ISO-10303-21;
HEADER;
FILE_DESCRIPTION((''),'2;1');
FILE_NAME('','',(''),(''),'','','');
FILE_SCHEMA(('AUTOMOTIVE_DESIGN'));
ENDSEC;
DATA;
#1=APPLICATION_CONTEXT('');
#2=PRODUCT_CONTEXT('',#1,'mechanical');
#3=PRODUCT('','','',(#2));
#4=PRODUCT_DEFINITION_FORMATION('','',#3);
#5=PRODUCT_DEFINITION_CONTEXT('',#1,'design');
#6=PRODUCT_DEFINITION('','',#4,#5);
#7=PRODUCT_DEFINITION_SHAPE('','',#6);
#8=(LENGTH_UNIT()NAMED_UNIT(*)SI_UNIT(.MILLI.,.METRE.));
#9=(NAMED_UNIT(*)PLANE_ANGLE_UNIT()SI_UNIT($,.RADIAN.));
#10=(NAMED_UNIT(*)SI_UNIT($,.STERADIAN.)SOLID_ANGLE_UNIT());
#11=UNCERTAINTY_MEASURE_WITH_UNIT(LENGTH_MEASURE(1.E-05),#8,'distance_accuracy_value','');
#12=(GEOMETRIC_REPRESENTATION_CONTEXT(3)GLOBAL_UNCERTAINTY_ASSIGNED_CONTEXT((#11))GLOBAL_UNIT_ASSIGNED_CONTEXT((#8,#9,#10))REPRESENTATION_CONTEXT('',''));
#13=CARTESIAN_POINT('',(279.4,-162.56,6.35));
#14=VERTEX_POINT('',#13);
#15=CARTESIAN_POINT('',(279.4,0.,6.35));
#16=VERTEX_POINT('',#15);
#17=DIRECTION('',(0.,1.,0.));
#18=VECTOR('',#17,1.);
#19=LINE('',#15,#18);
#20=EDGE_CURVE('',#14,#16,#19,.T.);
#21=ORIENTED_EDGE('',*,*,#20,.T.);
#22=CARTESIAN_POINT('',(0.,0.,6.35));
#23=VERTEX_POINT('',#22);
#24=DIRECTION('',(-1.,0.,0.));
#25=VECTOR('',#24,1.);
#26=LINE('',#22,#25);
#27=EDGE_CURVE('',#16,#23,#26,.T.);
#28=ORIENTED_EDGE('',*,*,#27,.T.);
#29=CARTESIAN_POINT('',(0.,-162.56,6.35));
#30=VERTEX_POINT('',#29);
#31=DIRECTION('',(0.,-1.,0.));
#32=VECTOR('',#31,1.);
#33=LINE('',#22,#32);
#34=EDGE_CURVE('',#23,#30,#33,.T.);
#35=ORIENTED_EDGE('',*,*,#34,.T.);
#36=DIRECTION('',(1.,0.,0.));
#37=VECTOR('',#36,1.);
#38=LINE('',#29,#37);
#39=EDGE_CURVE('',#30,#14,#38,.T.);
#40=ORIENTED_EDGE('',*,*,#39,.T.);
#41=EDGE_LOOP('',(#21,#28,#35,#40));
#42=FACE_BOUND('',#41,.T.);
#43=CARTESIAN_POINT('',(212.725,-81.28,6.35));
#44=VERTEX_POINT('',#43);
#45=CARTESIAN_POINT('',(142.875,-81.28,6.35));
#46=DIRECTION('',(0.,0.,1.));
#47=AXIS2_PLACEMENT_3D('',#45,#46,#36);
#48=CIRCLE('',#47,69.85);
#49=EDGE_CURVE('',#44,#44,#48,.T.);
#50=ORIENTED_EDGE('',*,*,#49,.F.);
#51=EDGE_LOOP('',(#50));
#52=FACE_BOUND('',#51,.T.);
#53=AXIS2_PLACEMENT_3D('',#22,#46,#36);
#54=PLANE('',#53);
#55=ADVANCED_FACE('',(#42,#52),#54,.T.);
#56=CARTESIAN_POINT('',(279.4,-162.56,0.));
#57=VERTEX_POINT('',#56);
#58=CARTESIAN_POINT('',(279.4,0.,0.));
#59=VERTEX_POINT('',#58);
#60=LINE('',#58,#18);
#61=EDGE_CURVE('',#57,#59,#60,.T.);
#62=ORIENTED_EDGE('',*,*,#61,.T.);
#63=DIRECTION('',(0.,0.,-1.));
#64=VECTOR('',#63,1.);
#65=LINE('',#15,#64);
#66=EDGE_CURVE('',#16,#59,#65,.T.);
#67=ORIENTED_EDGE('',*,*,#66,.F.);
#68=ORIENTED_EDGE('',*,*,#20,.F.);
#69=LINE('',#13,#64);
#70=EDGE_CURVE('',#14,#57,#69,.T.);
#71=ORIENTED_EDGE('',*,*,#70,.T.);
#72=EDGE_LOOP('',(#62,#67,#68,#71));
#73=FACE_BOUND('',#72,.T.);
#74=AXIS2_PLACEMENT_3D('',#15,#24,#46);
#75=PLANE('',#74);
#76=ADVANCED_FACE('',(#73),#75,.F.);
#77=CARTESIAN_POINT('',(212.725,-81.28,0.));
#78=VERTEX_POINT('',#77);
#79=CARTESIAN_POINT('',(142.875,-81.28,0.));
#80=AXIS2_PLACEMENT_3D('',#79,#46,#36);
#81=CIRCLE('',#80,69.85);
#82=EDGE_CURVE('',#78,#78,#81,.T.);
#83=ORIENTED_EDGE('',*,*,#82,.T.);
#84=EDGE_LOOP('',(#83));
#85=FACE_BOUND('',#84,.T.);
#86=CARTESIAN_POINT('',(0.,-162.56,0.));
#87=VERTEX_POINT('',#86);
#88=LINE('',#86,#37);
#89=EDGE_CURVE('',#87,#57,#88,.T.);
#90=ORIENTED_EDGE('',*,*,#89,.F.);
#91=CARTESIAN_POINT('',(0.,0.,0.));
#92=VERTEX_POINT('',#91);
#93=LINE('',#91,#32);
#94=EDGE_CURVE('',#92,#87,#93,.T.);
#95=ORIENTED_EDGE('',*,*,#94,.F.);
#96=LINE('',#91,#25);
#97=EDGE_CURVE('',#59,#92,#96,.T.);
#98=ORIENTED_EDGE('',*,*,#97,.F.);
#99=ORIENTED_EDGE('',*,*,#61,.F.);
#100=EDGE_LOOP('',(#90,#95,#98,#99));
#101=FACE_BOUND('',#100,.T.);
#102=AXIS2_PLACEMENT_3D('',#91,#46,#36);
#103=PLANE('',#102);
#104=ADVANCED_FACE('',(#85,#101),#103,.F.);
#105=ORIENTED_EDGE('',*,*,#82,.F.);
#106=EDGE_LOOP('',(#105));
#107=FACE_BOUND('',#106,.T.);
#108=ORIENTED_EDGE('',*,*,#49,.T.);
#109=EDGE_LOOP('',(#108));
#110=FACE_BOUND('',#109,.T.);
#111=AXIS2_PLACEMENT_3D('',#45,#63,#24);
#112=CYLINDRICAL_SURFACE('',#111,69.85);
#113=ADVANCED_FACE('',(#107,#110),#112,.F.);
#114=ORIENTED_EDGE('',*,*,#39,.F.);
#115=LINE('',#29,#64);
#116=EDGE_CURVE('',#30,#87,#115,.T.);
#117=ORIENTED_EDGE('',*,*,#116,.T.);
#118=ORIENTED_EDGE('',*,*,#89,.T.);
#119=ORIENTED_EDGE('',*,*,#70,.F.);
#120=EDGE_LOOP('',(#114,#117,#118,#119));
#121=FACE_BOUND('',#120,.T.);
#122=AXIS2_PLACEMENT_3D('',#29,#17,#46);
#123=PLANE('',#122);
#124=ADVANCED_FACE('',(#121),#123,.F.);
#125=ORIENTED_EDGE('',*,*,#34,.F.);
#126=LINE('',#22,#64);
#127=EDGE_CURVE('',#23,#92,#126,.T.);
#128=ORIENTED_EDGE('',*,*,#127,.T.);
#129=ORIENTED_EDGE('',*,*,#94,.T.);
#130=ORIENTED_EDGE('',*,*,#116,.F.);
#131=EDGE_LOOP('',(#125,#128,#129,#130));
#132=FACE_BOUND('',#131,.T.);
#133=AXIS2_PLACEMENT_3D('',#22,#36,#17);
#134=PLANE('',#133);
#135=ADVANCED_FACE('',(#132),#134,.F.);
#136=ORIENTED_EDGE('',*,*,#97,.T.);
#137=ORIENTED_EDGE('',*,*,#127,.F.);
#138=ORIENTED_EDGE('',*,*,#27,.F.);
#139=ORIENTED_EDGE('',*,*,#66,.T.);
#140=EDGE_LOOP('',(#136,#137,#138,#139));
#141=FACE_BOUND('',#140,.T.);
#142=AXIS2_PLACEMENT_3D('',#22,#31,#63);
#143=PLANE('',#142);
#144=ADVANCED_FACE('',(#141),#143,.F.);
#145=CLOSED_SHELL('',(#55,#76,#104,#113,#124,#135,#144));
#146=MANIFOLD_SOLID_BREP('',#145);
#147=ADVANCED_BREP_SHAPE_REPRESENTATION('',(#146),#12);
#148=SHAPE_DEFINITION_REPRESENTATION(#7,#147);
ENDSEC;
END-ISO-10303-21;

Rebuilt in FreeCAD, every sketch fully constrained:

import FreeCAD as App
import Part
import Sketcher
Q = App.Units.Quantity

doc = App.newDocument("Part")
body = doc.addObject("PartDesign::Body", "Body")

# Sketch on XY plane
sketch1 = body.newObject("Sketcher::SketchObject", "Sketch")
sketch1.AttachmentSupport = (doc.getObject("XY_Plane"), [""])
sketch1.MapMode = "FlatFace"
sketch1.addGeometry(Part.LineSegment(App.Vector(0, 0, 0), App.Vector(0, -163, 0)), False)
sketch1.addGeometry(Part.LineSegment(App.Vector(0, -163, 0), App.Vector(279, -163, 0)), False)
sketch1.addGeometry(Part.LineSegment(App.Vector(279, -163, 0), App.Vector(279, 0, 0)), False)
sketch1.addGeometry(Part.LineSegment(App.Vector(279, 0, 0), App.Vector(0, 0, 0)), False)
sketch1.addGeometry(Part.Circle(App.Vector(143, -81, 0), App.Vector(0, 0, 1), 70), False)
sketch1.addConstraint(Sketcher.Constraint("Coincident", 0, 2, 1, 1))
sketch1.addConstraint(Sketcher.Constraint("Coincident", 1, 2, 2, 1))
sketch1.addConstraint(Sketcher.Constraint("Coincident", 2, 2, 3, 1))
sketch1.addConstraint(Sketcher.Constraint("Coincident", 3, 2, 0, 1))
sketch1.addConstraint(Sketcher.Constraint("Vertical", 0))
sketch1.addConstraint(Sketcher.Constraint("Horizontal", 1))
sketch1.addConstraint(Sketcher.Constraint("Vertical", 2))
sketch1.addConstraint(Sketcher.Constraint("Horizontal", 3))
sketch1.addConstraint(Sketcher.Constraint("Coincident", 3, 2, -1, 1))
sketch1.addConstraint(Sketcher.Constraint("Diameter", 4, Q("5.5 in")))
sketch1.addConstraint(Sketcher.Constraint("DistanceX", 1, 1, 1, 2, Q("11 in")))
sketch1.addConstraint(Sketcher.Constraint("DistanceY", 0, 2, 0, 1, Q("6.4 in")))
sketch1.addConstraint(Sketcher.Constraint("DistanceY", 4, 3, -1, 1, Q("3.2 in")))
sketch1.addConstraint(Sketcher.Constraint("DistanceX", -1, 1, 4, 3, Q("5.625 in")))
pad1 = body.newObject("PartDesign::Pad", "Pad")
pad1.Profile = sketch1
pad1.Length = Q("0.25 in")

doc.recompute()
